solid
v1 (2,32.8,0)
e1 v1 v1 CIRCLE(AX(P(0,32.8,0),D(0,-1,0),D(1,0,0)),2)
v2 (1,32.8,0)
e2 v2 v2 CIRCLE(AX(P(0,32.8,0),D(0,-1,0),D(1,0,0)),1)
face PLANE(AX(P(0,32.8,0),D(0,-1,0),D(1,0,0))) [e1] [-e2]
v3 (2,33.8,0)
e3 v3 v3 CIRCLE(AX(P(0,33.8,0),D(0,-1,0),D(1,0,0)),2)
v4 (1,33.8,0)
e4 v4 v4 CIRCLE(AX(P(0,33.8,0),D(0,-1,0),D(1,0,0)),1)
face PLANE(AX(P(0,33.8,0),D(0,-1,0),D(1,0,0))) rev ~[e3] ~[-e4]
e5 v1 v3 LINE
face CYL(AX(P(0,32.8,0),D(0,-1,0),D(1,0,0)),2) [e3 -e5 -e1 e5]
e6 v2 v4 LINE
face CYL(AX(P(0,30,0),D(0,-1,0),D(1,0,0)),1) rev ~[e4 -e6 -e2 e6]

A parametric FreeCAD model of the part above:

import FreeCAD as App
import Part
import Sketcher

doc = App.newDocument("Part")
params = doc.addObject("Spreadsheet::Sheet", "Params")
for row, (alias, value) in enumerate([
    ("sketch1_diameter", "2 mm"),
    ("pad1_length", "10 mm"),
    ("sketch2_diameter", "4 mm"),
    ("pad2_length", "1 mm"),
], start=1):
    params.set(f"A{row}", alias)
    params.set(f"B{row}", "=" + value)
    params.setAlias(f"B{row}", alias)

body = doc.addObject("PartDesign::Body", "Body")

sketch1 = body.newObject("Sketcher::SketchObject", "Sketch")
sketch1.AttachmentSupport = (doc.getObject("XY_Plane"), [""])
sketch1.MapMode = "FlatFace"
sketch1.addGeometry(Part.Circle(App.Vector(0, 0, 0), App.Vector(0, 0, 1), 1), False)
sketch1.addConstraint([
    Sketcher.Constraint("Coincident", 0, 3, -1, 1),
    Sketcher.Constraint("Diameter", 0, 2.0),
])
sketch1.setExpression("Constraints[1]", "Params.sketch1_diameter")
pad1 = body.newObject("PartDesign::Pad", "Pad")
pad1.Profile = sketch1
pad1.setExpression("Length", "Params.pad1_length")
pad1.Reversed = True
body2 = doc.addObject("PartDesign::Body", "Body001")
doc.recompute()

body.Placement = App.Placement(App.Vector(0, 0, 0), App.Rotation(App.Vector(1, 0, 0), 90))
boolean = body2.newObject("PartDesign::Boolean", "Boolean")
boolean.Type = "Fuse"
boolean.addObjects([body])
body3 = doc.addObject("PartDesign::Body", "Body002")
doc.recompute()

body2.Placement = App.Placement(App.Vector(0, 30, 0), App.Rotation(App.Vector(0, 0, 1), 0))
boolean2 = body3.newObject("PartDesign::Boolean", "Boolean001")
boolean2.Type = "Fuse"
boolean2.addObjects([body2])
body4 = doc.addObject("PartDesign::Body", "Body003")

sketch2 = body4.newObject("Sketcher::SketchObject", "Sketch001")
sketch2.AttachmentSupport = (doc.getObject("XY_Plane003"), [""])
sketch2.MapMode = "FlatFace"
sketch2.addGeometry(Part.Circle(App.Vector(0, 0, 0), App.Vector(0, 0, 1), 2), False)
sketch2.addConstraint([
    Sketcher.Constraint("Coincident", 0, 3, -1, 1),
    Sketcher.Constraint("Diameter", 0, 4.0),
])
sketch2.setExpression("Constraints[1]", "Params.sketch2_diameter")
pad2 = body4.newObject("PartDesign::Pad", "Pad001")
pad2.Profile = sketch2
pad2.setExpression("Length", "Params.pad2_length")
pad2.Reversed = True
body5 = doc.addObject("PartDesign::Body", "Body004")
doc.recompute()

body4.Placement = App.Placement(App.Vector(0, 0, 0), App.Rotation(App.Vector(1, 0, 0), 90))
boolean3 = body5.newObject("PartDesign::Boolean", "Boolean002")
boolean3.Type = "Fuse"
boolean3.addObjects([body4])
body6 = doc.addObject("PartDesign::Body", "Body005")
doc.recompute()

body5.Placement = App.Placement(App.Vector(0, 34, 0), App.Rotation(App.Vector(0, 0, 1), 0))
boolean4 = body6.newObject("PartDesign::Boolean", "Boolean003")
boolean4.Type = "Fuse"
boolean4.addObjects([body5])
body7 = doc.addObject("PartDesign::Body", "Body006")
doc.recompute()

body6.Placement = App.Placement(App.Vector(0, -1.2, 0), App.Rotation(App.Vector(0, 0, 1), 0))
boolean5 = body7.newObject("PartDesign::Boolean", "Boolean004")
boolean5.Type = "Fuse"
boolean5.addObjects([body6])
doc.recompute()

boolean6 = body7.newObject("PartDesign::Boolean", "Boolean005")
boolean6.Type = "Cut"
boolean6.addObjects([body3])

doc.recompute()
